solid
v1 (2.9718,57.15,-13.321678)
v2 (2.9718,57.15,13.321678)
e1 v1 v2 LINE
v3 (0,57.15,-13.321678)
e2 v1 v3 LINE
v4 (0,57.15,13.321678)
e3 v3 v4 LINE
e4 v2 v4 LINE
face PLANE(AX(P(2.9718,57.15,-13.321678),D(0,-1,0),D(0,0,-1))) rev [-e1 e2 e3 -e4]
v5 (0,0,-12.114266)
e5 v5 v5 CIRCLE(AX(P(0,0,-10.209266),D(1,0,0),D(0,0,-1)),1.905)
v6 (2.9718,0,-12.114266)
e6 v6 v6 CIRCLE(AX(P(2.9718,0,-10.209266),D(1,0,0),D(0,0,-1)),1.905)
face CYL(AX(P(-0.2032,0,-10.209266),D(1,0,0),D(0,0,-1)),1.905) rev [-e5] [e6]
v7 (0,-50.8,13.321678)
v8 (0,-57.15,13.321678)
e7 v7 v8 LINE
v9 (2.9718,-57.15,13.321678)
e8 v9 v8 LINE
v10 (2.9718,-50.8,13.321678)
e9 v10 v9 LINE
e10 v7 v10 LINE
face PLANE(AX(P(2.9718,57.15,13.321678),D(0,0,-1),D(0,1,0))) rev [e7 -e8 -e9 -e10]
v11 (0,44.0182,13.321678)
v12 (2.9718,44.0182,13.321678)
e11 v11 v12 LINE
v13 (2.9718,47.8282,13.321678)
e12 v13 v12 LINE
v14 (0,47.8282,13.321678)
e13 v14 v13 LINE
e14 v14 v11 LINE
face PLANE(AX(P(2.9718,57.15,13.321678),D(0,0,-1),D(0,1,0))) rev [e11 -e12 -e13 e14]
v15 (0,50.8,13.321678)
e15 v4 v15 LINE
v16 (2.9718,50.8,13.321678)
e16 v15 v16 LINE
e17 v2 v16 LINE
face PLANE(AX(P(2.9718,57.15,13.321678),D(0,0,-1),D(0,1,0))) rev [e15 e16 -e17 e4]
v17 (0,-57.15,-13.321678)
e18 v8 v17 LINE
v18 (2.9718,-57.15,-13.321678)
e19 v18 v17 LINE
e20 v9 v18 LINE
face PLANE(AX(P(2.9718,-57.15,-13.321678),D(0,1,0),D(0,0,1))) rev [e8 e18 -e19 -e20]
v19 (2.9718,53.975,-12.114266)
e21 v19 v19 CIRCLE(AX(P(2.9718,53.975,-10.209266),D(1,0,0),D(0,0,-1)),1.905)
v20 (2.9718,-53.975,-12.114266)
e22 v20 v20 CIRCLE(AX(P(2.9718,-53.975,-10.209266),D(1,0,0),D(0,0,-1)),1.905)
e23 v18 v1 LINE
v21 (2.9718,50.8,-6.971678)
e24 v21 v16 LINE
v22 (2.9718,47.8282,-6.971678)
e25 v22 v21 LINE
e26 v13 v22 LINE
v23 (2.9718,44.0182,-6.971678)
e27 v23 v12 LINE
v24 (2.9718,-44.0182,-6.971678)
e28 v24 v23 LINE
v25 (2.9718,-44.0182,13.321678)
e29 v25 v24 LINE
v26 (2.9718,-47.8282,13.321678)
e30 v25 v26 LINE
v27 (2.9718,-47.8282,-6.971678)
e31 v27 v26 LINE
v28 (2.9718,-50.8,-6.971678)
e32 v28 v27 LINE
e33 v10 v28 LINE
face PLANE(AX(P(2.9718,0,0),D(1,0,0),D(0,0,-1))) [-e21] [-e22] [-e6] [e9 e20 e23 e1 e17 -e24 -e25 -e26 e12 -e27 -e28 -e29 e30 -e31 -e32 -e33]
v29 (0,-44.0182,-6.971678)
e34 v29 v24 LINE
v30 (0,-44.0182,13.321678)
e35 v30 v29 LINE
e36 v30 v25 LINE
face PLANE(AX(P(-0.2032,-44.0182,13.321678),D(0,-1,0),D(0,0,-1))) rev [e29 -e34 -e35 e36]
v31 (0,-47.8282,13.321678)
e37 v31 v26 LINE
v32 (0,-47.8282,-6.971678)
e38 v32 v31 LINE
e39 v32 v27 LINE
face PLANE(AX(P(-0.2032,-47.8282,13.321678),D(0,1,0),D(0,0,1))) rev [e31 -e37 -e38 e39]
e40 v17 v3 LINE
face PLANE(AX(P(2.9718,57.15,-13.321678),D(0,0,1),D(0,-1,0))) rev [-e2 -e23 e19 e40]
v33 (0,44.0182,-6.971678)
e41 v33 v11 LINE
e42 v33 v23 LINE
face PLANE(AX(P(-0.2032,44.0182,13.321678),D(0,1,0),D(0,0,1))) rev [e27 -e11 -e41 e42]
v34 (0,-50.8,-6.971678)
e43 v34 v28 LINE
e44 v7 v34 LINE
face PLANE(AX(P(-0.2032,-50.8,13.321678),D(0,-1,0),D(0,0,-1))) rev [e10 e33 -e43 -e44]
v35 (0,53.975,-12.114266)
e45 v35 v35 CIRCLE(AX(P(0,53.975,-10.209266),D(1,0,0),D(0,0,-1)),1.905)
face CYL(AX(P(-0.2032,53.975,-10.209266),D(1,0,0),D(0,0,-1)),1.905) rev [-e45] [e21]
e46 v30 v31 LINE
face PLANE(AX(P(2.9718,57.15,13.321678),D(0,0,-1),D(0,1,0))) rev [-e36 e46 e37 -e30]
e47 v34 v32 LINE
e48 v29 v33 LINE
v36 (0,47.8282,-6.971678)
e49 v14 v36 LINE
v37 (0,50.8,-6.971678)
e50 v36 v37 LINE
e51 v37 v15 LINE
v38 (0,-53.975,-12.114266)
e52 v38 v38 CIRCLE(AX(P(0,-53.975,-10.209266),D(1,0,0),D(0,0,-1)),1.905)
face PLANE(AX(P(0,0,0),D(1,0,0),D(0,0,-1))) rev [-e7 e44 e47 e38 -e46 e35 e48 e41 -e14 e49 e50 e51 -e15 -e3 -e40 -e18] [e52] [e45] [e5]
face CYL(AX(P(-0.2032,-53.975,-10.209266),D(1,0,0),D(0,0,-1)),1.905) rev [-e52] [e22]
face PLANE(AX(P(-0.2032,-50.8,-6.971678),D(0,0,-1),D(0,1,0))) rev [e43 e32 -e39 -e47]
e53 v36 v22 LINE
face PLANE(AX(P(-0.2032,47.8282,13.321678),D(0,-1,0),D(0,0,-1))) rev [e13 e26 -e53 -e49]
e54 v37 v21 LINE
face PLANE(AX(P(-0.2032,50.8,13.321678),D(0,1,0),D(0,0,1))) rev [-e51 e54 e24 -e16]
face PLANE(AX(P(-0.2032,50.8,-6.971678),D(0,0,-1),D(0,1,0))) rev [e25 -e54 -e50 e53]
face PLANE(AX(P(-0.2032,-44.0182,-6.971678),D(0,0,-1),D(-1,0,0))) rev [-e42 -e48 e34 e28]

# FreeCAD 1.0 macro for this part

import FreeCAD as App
import Part
import Sketcher
from FreeCAD import Vector
Q = App.Units.Quantity

doc = App.newDocument("Part")
params = doc.addObject("Spreadsheet::Sheet", "Params")
for row, (alias, value) in enumerate([
    ("sketch1_width", "4.5 in"),
    ("pad1_length", "0.117 in"),
    ("sketch2_width", "0.117 in"),
    ("sketch2_width2", "3.466 in"),
    ("pocket1_length", "0.125 in"),
    ("sketch3_diameter", "0.15 in"),
    ("pocket2_length", "0.125 in"),
], start=1):
    params.set(f"A{row}", alias)
    params.set(f"B{row}", "=" + value)
    params.setAlias(f"B{row}", alias)

body = doc.addObject("PartDesign::Body", "Body")

# Sketch on YZ plane
sketch1 = body.newObject("Sketcher::SketchObject", "Sketch")
sketch1.AttachmentSupport = (doc.getObject("YZ_Plane"), [""])
sketch1.MapMode = "FlatFace"
sketch1.addGeometry(Part.LineSegment(Vector(-57, 13, 0), Vector(-57, -13, 0)), False)
sketch1.addGeometry(Part.LineSegment(Vector(-57, -13, 0), Vector(57, -13, 0)), False)
sketch1.addGeometry(Part.LineSegment(Vector(57, -13, 0), Vector(57, 13, 0)), False)
sketch1.addGeometry(Part.LineSegment(Vector(57, 13, 0), Vector(-57, 13, 0)), False)
sketch1.addConstraint(Sketcher.Constraint("Coincident", 0, 2, 1, 1))
sketch1.addConstraint(Sketcher.Constraint("Coincident", 1, 2, 2, 1))
sketch1.addConstraint(Sketcher.Constraint("Coincident", 2, 2, 3, 1))
sketch1.addConstraint(Sketcher.Constraint("Coincident", 3, 2, 0, 1))
sketch1.addConstraint(Sketcher.Constraint("Vertical", 0))
sketch1.addConstraint(Sketcher.Constraint("Horizontal", 1))
sketch1.addConstraint(Sketcher.Constraint("Vertical", 2))
sketch1.addConstraint(Sketcher.Constraint("Horizontal", 3))
sketch1.addConstraint(Sketcher.Constraint("Symmetric", 0, 2, 2, 2, -1, 1))
sketch1.addConstraint(Sketcher.Constraint("DistanceX", 1, 1, 1, 2, Q("4.5 in")))
sketch1.addConstraint(Sketcher.Constraint("DistanceY", 0, 2, 0, 1, 26.643357))
sketch1.setExpression("Constraints[9]", "Params.sketch1_width")
pad1 = body.newObject("PartDesign::Pad", "Pad")
pad1.Profile = sketch1
pad1.setExpression("Length", "Params.pad1_length")

# Sketch on YZ plane
sketch2 = body.newObject("Sketcher::SketchObject", "Sketch001")
sketch2.AttachmentSupport = (doc.getObject("YZ_Plane"), [""])
sketch2.MapMode = "FlatFace"
sketch2.AttachmentOffset = App.Placement(Vector(0, 0, 0.117 * 25.4), App.Rotation())
sketch2.addGeometry(Part.LineSegment(Vector(-50.8, 13.3, 0), Vector(-50.8, -7, 0)), False)
sketch2.addGeometry(Part.LineSegment(Vector(-50.8, -7, 0), Vector(-47.8, -7, 0)), False)
sketch2.addGeometry(Part.LineSegment(Vector(-47.8, -7, 0), Vector(-47.8, 13.3, 0)), False)
sketch2.addGeometry(Part.LineSegment(Vector(-47.8, 13.3, 0), Vector(-50.8, 13.3, 0)), False)
sketch2.addGeometry(Part.LineSegment(Vector(47.8, 13.3, 0), Vector(47.8, -7, 0)), False)
sketch2.addGeometry(Part.LineSegment(Vector(47.8, -7, 0), Vector(50.8, -7, 0)), False)
sketch2.addGeometry(Part.LineSegment(Vector(50.8, -7, 0), Vector(50.8, 13.3, 0)), False)
sketch2.addGeometry(Part.LineSegment(Vector(50.8, 13.3, 0), Vector(47.8, 13.3, 0)), False)
sketch2.addGeometry(Part.LineSegment(Vector(-44, 13.3, 0), Vector(-44, -7, 0)), False)
sketch2.addGeometry(Part.LineSegment(Vector(-44, -7, 0), Vector(44, -7, 0)), False)
sketch2.addGeometry(Part.LineSegment(Vector(44, -7, 0), Vector(44, 13.3, 0)), False)
sketch2.addGeometry(Part.LineSegment(Vector(44, 13.3, 0), Vector(-44, 13.3, 0)), False)
sketch2.addConstraint(Sketcher.Constraint("Coincident", 0, 2, 1, 1))
sketch2.addConstraint(Sketcher.Constraint("Coincident", 1, 2, 2, 1))
sketch2.addConstraint(Sketcher.Constraint("Coincident", 2, 2, 3, 1))
sketch2.addConstraint(Sketcher.Constraint("Coincident", 3, 2, 0, 1))
sketch2.addConstraint(Sketcher.Constraint("Coincident", 4, 2, 5, 1))
sketch2.addConstraint(Sketcher.Constraint("Coincident", 5, 2, 6, 1))
sketch2.addConstraint(Sketcher.Constraint("Coincident", 6, 2, 7, 1))
sketch2.addConstraint(Sketcher.Constraint("Coincident", 7, 2, 4, 1))
sketch2.addConstraint(Sketcher.Constraint("Coincident", 8, 2, 9, 1))
sketch2.addConstraint(Sketcher.Constraint("Coincident", 9, 2, 10, 1))
sketch2.addConstraint(Sketcher.Constraint("Coincident", 10, 2, 11, 1))
sketch2.addConstraint(Sketcher.Constraint("Coincident", 11, 2, 8, 1))
sketch2.addConstraint(Sketcher.Constraint("Vertical", 0))
sketch2.addConstraint(Sketcher.Constraint("Horizontal", 1))
sketch2.addConstraint(Sketcher.Constraint("Vertical", 2))
sketch2.addConstraint(Sketcher.Constraint("Horizontal", 3))
sketch2.addConstraint(Sketcher.Constraint("Vertical", 4))
sketch2.addConstraint(Sketcher.Constraint("Horizontal", 5))
sketch2.addConstraint(Sketcher.Constraint("Vertical", 6))
sketch2.addConstraint(Sketcher.Constraint("Horizontal", 7))
sketch2.addConstraint(Sketcher.Constraint("Vertical", 8))
sketch2.addConstraint(Sketcher.Constraint("Horizontal", 9))
sketch2.addConstraint(Sketcher.Constraint("Vertical", 10))
sketch2.addConstraint(Sketcher.Constraint("Horizontal", 11))
sketch2.addConstraint(Sketcher.Constraint("Symmetric", 1, 2, 4, 2, -2))
sketch2.addConstraint(Sketcher.Constraint("Symmetric", 3, 2, 6, 2, -2))
sketch2.addConstraint(Sketcher.Constraint("Horizontal", 5, 2, 8, 2))
sketch2.addConstraint(Sketcher.Constraint("Horizontal", 7, 2, 10, 2))
sketch2.addConstraint(Sketcher.Constraint("DistanceX", 0, 2, -1, 1, Q("2 in")))
sketch2.addConstraint(Sketcher.Constraint("DistanceX", 1, 1, 1, 2, Q("0.117 in")))
sketch2.addConstraint(Sketcher.Constraint("DistanceX", 9, 1, 9, 2, Q("3.466 in")))
sketch2.addConstraint(Sketcher.Constraint("DistanceX", 1, 2, 8, 2, Q("0.15 in")))
sketch2.addConstraint(Sketcher.Constraint("DistanceY", 0, 2, 0, 1, 20.293357))
sketch2.addConstraint(Sketcher.Constraint("DistanceY", 0, 2, -1, 1, 6.971678))
sketch2.setExpression("Constraints[29]", "Params.sketch2_width")
sketch2.setExpression("Constraints[30]", "Params.sketch2_width2")
pocket1 = body.newObject("PartDesign::Pocket", "Pocket")
pocket1.Profile = sketch2
pocket1.setExpression("Length", "Params.pocket1_length")

# Sketch on YZ plane
sketch3 = body.newObject("Sketcher::SketchObject", "Sketch002")
sketch3.AttachmentSupport = (doc.getObject("YZ_Plane"), [""])
sketch3.MapMode = "FlatFace"
sketch3.AttachmentOffset = App.Placement(Vector(0, 0, 0.117 * 25.4), App.Rotation())
sketch3.addGeometry(Part.Circle(Vector(0, -10.2, 0), Vector(0, 0, 1), 1.9), False)
sketch3.addGeometry(Part.Circle(Vector(-54, -10.2, 0), Vector(0, 0, 1), 1.9), False)
sketch3.addGeometry(Part.Circle(Vector(54, -10.2, 0), Vector(0, 0, 1), 1.9), False)
sketch3.addConstraint(Sketcher.Constraint("Equal", 0, 1))
sketch3.addConstraint(Sketcher.Constraint("Equal", 1, 2))
sketch3.addConstraint(Sketcher.Constraint("Symmetric", 1, 3, 2, 3, -2))
sketch3.addConstraint(Sketcher.Constraint("PointOnObject", 0, 3, -2))
sketch3.addConstraint(Sketcher.Constraint("Horizontal", 0, 3, 1, 3))
sketch3.addConstraint(Sketcher.Constraint("Diameter", 0, Q("0.15 in")))
sketch3.addConstraint(Sketcher.Constraint("DistanceX", 1, 3, 2, 3, Q("4.25 in")))
sketch3.addConstraint(Sketcher.Constraint("DistanceY", 0, 3, -1, 1, 10.209266))
sketch3.setExpression("Constraints[5]", "Params.sketch3_diameter")
pocket2 = body.newObject("PartDesign::Pocket", "Pocket001")
pocket2.Profile = sketch3
pocket2.setExpression("Length", "Params.pocket2_length")

doc.recompute()
